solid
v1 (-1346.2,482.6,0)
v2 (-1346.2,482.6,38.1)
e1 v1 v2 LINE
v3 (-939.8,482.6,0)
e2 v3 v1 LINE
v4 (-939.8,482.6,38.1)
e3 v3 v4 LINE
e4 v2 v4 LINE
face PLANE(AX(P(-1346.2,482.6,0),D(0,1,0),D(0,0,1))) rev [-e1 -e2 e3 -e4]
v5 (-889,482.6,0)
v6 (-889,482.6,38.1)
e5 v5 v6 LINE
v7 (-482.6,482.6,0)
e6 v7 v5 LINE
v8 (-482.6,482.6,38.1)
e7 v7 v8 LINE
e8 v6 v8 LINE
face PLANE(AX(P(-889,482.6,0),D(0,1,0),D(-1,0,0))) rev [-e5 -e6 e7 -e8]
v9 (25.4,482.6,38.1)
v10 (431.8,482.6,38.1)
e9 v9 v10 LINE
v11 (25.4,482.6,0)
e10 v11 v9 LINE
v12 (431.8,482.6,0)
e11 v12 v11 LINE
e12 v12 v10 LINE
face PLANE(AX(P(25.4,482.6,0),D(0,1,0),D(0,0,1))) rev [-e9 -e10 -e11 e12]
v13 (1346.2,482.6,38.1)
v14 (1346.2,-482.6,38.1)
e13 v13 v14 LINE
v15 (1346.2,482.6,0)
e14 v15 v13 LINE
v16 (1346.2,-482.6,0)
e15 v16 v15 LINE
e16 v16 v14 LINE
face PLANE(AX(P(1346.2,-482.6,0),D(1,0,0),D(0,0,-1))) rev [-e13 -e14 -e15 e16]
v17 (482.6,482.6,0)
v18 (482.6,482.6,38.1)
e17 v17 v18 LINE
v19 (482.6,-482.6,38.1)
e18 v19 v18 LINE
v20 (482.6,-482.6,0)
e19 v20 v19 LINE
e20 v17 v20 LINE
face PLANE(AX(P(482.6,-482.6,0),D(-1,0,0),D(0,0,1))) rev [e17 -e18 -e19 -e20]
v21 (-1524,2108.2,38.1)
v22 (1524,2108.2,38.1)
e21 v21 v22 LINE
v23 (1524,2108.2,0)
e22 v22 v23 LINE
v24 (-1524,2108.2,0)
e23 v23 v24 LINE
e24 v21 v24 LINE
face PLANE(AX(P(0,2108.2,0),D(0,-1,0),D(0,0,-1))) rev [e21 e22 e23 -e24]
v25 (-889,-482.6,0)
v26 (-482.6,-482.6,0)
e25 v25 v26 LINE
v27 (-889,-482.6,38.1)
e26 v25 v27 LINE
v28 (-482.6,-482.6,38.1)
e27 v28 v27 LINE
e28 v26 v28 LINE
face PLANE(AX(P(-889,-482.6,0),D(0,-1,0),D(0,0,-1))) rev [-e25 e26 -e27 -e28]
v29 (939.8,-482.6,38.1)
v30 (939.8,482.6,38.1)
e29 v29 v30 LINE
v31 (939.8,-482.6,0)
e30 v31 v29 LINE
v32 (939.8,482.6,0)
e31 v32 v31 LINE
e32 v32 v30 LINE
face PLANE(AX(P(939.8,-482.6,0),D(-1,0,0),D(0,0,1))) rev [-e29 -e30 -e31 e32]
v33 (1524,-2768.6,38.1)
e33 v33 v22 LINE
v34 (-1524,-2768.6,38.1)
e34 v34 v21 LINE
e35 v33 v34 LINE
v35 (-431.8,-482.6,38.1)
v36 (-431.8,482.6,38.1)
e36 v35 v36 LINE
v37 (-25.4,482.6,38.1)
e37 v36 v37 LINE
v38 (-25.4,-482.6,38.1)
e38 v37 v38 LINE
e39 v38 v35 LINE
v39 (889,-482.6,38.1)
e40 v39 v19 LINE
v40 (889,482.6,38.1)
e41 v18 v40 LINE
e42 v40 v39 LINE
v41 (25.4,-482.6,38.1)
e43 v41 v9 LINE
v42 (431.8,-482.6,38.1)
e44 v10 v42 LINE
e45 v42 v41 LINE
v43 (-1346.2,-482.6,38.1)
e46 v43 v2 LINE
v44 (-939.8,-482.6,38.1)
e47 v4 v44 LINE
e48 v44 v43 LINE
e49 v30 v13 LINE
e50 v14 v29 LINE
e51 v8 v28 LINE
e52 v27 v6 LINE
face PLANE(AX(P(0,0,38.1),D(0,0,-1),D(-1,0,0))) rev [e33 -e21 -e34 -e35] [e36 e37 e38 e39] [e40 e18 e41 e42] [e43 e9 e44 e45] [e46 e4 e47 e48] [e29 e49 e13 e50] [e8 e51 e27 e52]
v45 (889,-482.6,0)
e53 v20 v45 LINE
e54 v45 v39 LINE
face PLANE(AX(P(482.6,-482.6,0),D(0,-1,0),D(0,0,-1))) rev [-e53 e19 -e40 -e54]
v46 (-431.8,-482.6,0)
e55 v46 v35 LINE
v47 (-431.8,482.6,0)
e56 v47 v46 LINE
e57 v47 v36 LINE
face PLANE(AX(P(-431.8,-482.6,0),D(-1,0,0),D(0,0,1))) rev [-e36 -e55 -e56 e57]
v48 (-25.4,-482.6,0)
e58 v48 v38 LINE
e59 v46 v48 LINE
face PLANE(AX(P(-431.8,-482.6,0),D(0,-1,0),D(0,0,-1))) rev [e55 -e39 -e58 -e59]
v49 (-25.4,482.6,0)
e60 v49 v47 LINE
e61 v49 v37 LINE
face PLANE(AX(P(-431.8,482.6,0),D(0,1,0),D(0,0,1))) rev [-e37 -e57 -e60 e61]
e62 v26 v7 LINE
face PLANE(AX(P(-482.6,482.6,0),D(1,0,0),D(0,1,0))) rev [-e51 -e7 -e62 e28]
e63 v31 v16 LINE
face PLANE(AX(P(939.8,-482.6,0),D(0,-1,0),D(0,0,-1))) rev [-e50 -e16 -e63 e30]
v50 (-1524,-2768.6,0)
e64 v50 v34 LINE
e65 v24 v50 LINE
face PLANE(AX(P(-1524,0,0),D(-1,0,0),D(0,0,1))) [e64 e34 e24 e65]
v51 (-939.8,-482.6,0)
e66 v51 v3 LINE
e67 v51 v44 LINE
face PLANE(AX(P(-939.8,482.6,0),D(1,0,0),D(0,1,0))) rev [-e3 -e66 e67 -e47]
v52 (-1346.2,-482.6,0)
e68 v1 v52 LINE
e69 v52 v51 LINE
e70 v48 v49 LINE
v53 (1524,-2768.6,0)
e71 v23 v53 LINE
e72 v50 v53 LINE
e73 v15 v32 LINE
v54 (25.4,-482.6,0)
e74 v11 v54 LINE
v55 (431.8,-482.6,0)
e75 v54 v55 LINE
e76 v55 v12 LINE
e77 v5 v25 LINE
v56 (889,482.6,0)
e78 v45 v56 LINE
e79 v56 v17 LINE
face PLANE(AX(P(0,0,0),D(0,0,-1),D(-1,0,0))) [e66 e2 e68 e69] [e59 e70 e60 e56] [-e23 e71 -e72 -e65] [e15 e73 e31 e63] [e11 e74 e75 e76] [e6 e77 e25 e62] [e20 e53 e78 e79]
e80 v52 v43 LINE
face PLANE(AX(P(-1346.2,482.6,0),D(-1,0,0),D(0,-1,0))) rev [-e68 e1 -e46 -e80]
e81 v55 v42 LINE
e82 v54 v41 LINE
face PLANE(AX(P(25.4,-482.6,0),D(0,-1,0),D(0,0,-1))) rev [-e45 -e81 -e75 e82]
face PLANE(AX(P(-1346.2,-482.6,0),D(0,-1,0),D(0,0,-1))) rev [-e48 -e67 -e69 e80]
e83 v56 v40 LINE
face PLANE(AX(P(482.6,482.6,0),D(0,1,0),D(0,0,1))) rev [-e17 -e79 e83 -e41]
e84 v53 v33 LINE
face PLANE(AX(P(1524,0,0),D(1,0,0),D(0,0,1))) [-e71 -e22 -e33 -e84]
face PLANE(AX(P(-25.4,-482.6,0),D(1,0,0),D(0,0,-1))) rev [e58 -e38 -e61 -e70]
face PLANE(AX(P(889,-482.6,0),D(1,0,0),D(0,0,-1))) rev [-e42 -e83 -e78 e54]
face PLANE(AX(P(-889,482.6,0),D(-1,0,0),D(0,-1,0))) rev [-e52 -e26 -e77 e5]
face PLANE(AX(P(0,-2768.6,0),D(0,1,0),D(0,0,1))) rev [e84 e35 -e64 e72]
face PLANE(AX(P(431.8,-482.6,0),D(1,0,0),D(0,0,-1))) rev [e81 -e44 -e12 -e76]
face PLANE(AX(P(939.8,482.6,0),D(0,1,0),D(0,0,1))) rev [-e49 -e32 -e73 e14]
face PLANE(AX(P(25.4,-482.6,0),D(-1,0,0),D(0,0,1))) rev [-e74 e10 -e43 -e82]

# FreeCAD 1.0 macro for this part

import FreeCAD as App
import Part
import Sketcher
Q = App.Units.Quantity

doc = App.newDocument("Part")
body = doc.addObject("PartDesign::Body", "Body")

# Sketch on XY plane
sketch1 = body.newObject("Sketcher::SketchObject", "Sketch")
sketch1.AttachmentSupport = (doc.getObject("XY_Plane"), [""])
sketch1.MapMode = "FlatFace"
sketch1.addGeometry([
    Part.LineSegment(App.Vector(-1372, 533, 0), App.Vector(-1372, -533, 0)),
    Part.LineSegment(App.Vector(-1372, -533, 0), App.Vector(1372, -533, 0)),
    Part.LineSegment(App.Vector(1372, -533, 0), App.Vector(1372, 533, 0)),
    Part.LineSegment(App.Vector(1372, 533, 0), App.Vector(-1372, 533, 0)),
], False)
sketch1.addConstraint([
    Sketcher.Constraint("Coincident", 0, 2, 1, 1),
    Sketcher.Constraint("Coincident", 1, 2, 2, 1),
    Sketcher.Constraint("Coincident", 2, 2, 3, 1),
    Sketcher.Constraint("Coincident", 3, 2, 0, 1),
    Sketcher.Constraint("Vertical", 0),
    Sketcher.Constraint("Horizontal", 1),
    Sketcher.Constraint("Vertical", 2),
    Sketcher.Constraint("Horizontal", 3),
    Sketcher.Constraint("Symmetric", 0, 2, 2, 2, -1, 1),
    Sketcher.Constraint("DistanceX", 1, 1, 1, 2, Q("108 in")),
    Sketcher.Constraint("DistanceY", 0, 2, 0, 1, Q("42 in")),
])
pad1 = body.newObject("PartDesign::Pad", "Pad")
pad1.Profile = sketch1
pad1.Length = Q("1.5 in")

# Sketch on XY plane
sketch2 = body.newObject("Sketcher::SketchObject", "Sketch001")
sketch2.AttachmentSupport = (doc.getObject("XY_Plane"), [""])
sketch2.MapMode = "FlatFace"
sketch2.AttachmentOffset = App.Placement(App.Vector(0, 0, 1.5 * 25.4), App.Rotation())
sketch2.addGeometry([
    Part.LineSegment(App.Vector(-1346, 483, 0), App.Vector(-1346, -483, 0)),  # 0
    Part.LineSegment(App.Vector(-1346, -483, 0), App.Vector(-940, -483, 0)),  # 1
    Part.LineSegment(App.Vector(-940, -483, 0), App.Vector(-940, 483, 0)),  # 2
    Part.LineSegment(App.Vector(-940, 483, 0), App.Vector(-1346, 483, 0)),  # 3
    Part.LineSegment(App.Vector(-889, 483, 0), App.Vector(-889, -483, 0)),  # 4
    Part.LineSegment(App.Vector(-889, -483, 0), App.Vector(-483, -483, 0)),  # 5
    Part.LineSegment(App.Vector(-483, -483, 0), App.Vector(-483, 483, 0)),  # 6
    Part.LineSegment(App.Vector(-483, 483, 0), App.Vector(-889, 483, 0)),  # 7
    Part.LineSegment(App.Vector(-432, 483, 0), App.Vector(-432, -483, 0)),  # 8
    Part.LineSegment(App.Vector(-432, -483, 0), App.Vector(-25, -483, 0)),  # 9
    Part.LineSegment(App.Vector(-25, -483, 0), App.Vector(-25, 483, 0)),  # 10
    Part.LineSegment(App.Vector(-25, 483, 0), App.Vector(-432, 483, 0)),  # 11
    Part.LineSegment(App.Vector(25, 483, 0), App.Vector(25, -483, 0)),  # 12
    Part.LineSegment(App.Vector(25, -483, 0), App.Vector(432, -483, 0)),  # 13
    Part.LineSegment(App.Vector(432, -483, 0), App.Vector(432, 483, 0)),  # 14
    Part.LineSegment(App.Vector(432, 483, 0), App.Vector(25, 483, 0)),  # 15
    Part.LineSegment(App.Vector(483, 483, 0), App.Vector(483, -483, 0)),  # 16
    Part.LineSegment(App.Vector(483, -483, 0), App.Vector(889, -483, 0)),  # 17
    Part.LineSegment(App.Vector(889, -483, 0), App.Vector(889, 483, 0)),  # 18
    Part.LineSegment(App.Vector(889, 483, 0), App.Vector(483, 483, 0)),  # 19
    Part.LineSegment(App.Vector(940, 483, 0), App.Vector(940, -483, 0)),  # 20
    Part.LineSegment(App.Vector(940, -483, 0), App.Vector(1346, -483, 0)),  # 21
    Part.LineSegment(App.Vector(1346, -483, 0), App.Vector(1346, 483, 0)),  # 22
    Part.LineSegment(App.Vector(1346, 483, 0), App.Vector(940, 483, 0)),  # 23
], False)
sketch2.addConstraint([
    Sketcher.Constraint("Coincident", 0, 2, 1, 1),
    Sketcher.Constraint("Coincident", 1, 2, 2, 1),
    Sketcher.Constraint("Coincident", 2, 2, 3, 1),
    Sketcher.Constraint("Coincident", 3, 2, 0, 1),
    Sketcher.Constraint("Coincident", 4, 2, 5, 1),
    Sketcher.Constraint("Coincident", 5, 2, 6, 1),
    Sketcher.Constraint("Coincident", 6, 2, 7, 1),
    Sketcher.Constraint("Coincident", 7, 2, 4, 1),
    Sketcher.Constraint("Coincident", 8, 2, 9, 1),
    Sketcher.Constraint("Coincident", 9, 2, 10, 1),
    Sketcher.Constraint("Coincident", 10, 2, 11, 1),
    Sketcher.Constraint("Coincident", 11, 2, 8, 1),
    Sketcher.Constraint("Coincident", 12, 2, 13, 1),
    Sketcher.Constraint("Coincident", 13, 2, 14, 1),
    Sketcher.Constraint("Coincident", 14, 2, 15, 1),
    Sketcher.Constraint("Coincident", 15, 2, 12, 1),
    Sketcher.Constraint("Coincident", 16, 2, 17, 1),
    Sketcher.Constraint("Coincident", 17, 2, 18, 1),
    Sketcher.Constraint("Coincident", 18, 2, 19, 1),
    Sketcher.Constraint("Coincident", 19, 2, 16, 1),
    Sketcher.Constraint("Coincident", 20, 2, 21, 1),
    Sketcher.Constraint("Coincident", 21, 2, 22, 1),
    Sketcher.Constraint("Coincident", 22, 2, 23, 1),
    Sketcher.Constraint("Coincident", 23, 2, 20, 1),
    Sketcher.Constraint("Vertical", 0),
    Sketcher.Constraint("Horizontal", 1),
    Sketcher.Constraint("Vertical", 2),
    Sketcher.Constraint("Horizontal", 3),
    Sketcher.Constraint("Vertical", 4),
    Sketcher.Constraint("Horizontal", 5),
    Sketcher.Constraint("Vertical", 6),
    Sketcher.Constraint("Horizontal", 7),
    Sketcher.Constraint("Vertical", 8),
    Sketcher.Constraint("Horizontal", 9),
    Sketcher.Constraint("Vertical", 10),
    Sketcher.Constraint("Horizontal", 11),
    Sketcher.Constraint("Vertical", 12),
    Sketcher.Constraint("Horizontal", 13),
    Sketcher.Constraint("Vertical", 14),
    Sketcher.Constraint("Horizontal", 15),
    Sketcher.Constraint("Vertical", 16),
    Sketcher.Constraint("Horizontal", 17),
    Sketcher.Constraint("Vertical", 18),
    Sketcher.Constraint("Horizontal", 19),
    Sketcher.Constraint("Vertical", 20),
    Sketcher.Constraint("Horizontal", 21),
    Sketcher.Constraint("Vertical", 22),
    Sketcher.Constraint("Horizontal", 23),
    Sketcher.Constraint("Symmetric", 10, 2, 12, 2, -1, 1),
    Sketcher.Constraint("Symmetric", 8, 2, 14, 2, -1, 1),
    Sketcher.Constraint("Symmetric", 6, 2, 16, 2, -1, 1),
    Sketcher.Constraint("Symmetric", 4, 2, 18, 2, -1, 1),
    Sketcher.Constraint("Symmetric", 2, 2, 20, 2, -1, 1),
    Sketcher.Constraint("Symmetric", 0, 2, 22, 2, -1, 1),
    Sketcher.Constraint("Horizontal", 1, 2, 4, 2),
    Sketcher.Constraint("Horizontal", 3, 2, 6, 2),
    Sketcher.Constraint("Horizontal", 5, 2, 8, 2),
    Sketcher.Constraint("Horizontal", 7, 2, 10, 2),
    Sketcher.Constraint("Horizontal", 9, 2, 12, 2),
    Sketcher.Constraint("Equal", 3, 5),
    Sketcher.Constraint("Equal", 7, 9),
    Sketcher.Constraint("DistanceX", 1, 1, 1, 2, Q("16 in")),
    Sketcher.Constraint("DistanceY", 0, 2, 0, 1, Q("38 in")),
    Sketcher.Constraint("DistanceX", 0, 2, -1, 1, Q("53 in")),
    Sketcher.Constraint("DistanceX", 4, 2, -1, 1, Q("35 in")),
    Sketcher.Constraint("DistanceX", 8, 2, -1, 1, Q("17 in")),
])
pocket1 = body.newObject("PartDesign::Pocket", "Pocket")
pocket1.Profile = sketch2
pocket1.Type = "ThroughAll"
pocket1.Midplane = True

# Sketch on XZ plane
sketch3 = body.newObject("Sketcher::SketchObject", "Sketch002")
sketch3.AttachmentSupport = (doc.getObject("XZ_Plane"), [""])
sketch3.MapMode = "FlatFace"
sketch3.AttachmentOffset = App.Placement(App.Vector(0, 0, 21 * 25.4), App.Rotation())
sketch3.addGeometry([
    Part.LineSegment(App.Vector(-1372, 38, 0), App.Vector(-1372, 0, 0)),
    Part.LineSegment(App.Vector(-1372, 0, 0), App.Vector(1372, 0, 0)),
    Part.LineSegment(App.Vector(1372, 0, 0), App.Vector(1372, 38, 0)),
    Part.LineSegment(App.Vector(1372, 38, 0), App.Vector(-1372, 38, 0)),
], False)
sketch3.addConstraint([
    Sketcher.Constraint("Coincident", 0, 2, 1, 1),
    Sketcher.Constraint("Coincident", 1, 2, 2, 1),
    Sketcher.Constraint("Coincident", 2, 2, 3, 1),
    Sketcher.Constraint("Coincident", 3, 2, 0, 1),
    Sketcher.Constraint("Vertical", 0),
    Sketcher.Constraint("Horizontal", 1),
    Sketcher.Constraint("Vertical", 2),
    Sketcher.Constraint("Horizontal", 3),
    Sketcher.Constraint("Symmetric", 0, 2, 1, 2, -1, 1),
    Sketcher.Constraint("DistanceX", 1, 1, 1, 2, Q("108 in")),
    Sketcher.Constraint("DistanceY", 0, 2, 0, 1, Q("1.5 in")),
])
pad2 = body.newObject("PartDesign::Pad", "Pad001")
pad2.Profile = sketch3
pad2.Length = Q("88 in")

# Sketch on XZ plane
sketch4 = body.newObject("Sketcher::SketchObject", "Sketch003")
sketch4.AttachmentSupport = (doc.getObject("XZ_Plane"), [""])
sketch4.MapMode = "FlatFace"
sketch4.AttachmentOffset = App.Placement(App.Vector(0, 0, -21 * 25.4), App.Rotation())
sketch4.addGeometry([
    Part.LineSegment(App.Vector(-1372, 0, 0), App.Vector(-1372, 38, 0)),
    Part.LineSegment(App.Vector(-1372, 38, 0), App.Vector(1372, 38, 0)),
    Part.LineSegment(App.Vector(1372, 38, 0), App.Vector(1372, 0, 0)),
    Part.LineSegment(App.Vector(1372, 0, 0), App.Vector(-1372, 0, 0)),
], False)
sketch4.addConstraint([
    Sketcher.Constraint("Coincident", 0, 2, 1, 1),
    Sketcher.Constraint("Coincident", 1, 2, 2, 1),
    Sketcher.Constraint("Coincident", 2, 2, 3, 1),
    Sketcher.Constraint("Coincident", 3, 2, 0, 1),
    Sketcher.Constraint("Vertical", 0),
    Sketcher.Constraint("Horizontal", 1),
    Sketcher.Constraint("Vertical", 2),
    Sketcher.Constraint("Horizontal", 3),
    Sketcher.Constraint("Symmetric", 2, 2, 3, 2, -1, 1),
    Sketcher.Constraint("DistanceX", 1, 1, 1, 2, Q("108 in")),
    Sketcher.Constraint("DistanceY", 0, 1, 0, 2, Q("1.5 in")),
])
pad3 = body.newObject("PartDesign::Pad", "Pad002")
pad3.Profile = sketch4
pad3.Length = Q("62 in")
pad3.Reversed = True

# Sketch on YZ plane
sketch5 = body.newObject("Sketcher::SketchObject", "Sketch004")
sketch5.AttachmentSupport = (doc.getObject("YZ_Plane"), [""])
sketch5.MapMode = "FlatFace"
sketch5.AttachmentOffset = App.Placement(App.Vector(0, 0, -54 * 25.4), App.Rotation())
sketch5.addGeometry([
    Part.LineSegment(App.Vector(2108, 0, 0), App.Vector(-2769, 0, 0)),
    Part.LineSegment(App.Vector(-2769, 0, 0), App.Vector(-2769, 38, 0)),
    Part.LineSegment(App.Vector(-2769, 38, 0), App.Vector(2108, 38, 0)),
    Part.LineSegment(App.Vector(2108, 38, 0), App.Vector(2108, 0, 0)),
], False)
sketch5.addConstraint([
    Sketcher.Constraint("Coincident", 0, 2, 1, 1),
    Sketcher.Constraint("Coincident", 1, 2, 2, 1),
    Sketcher.Constraint("Coincident", 2, 2, 3, 1),
    Sketcher.Constraint("Coincident", 3, 2, 0, 1),
    Sketcher.Constraint("Horizontal", 0),
    Sketcher.Constraint("Vertical", 1),
    Sketcher.Constraint("Horizontal", 2),
    Sketcher.Constraint("Vertical", 3),
    Sketcher.Constraint("PointOnObject", 0, 2, -1),
    Sketcher.Constraint("DistanceX", 0, 2, 0, 1, Q("192 in")),
    Sketcher.Constraint("DistanceY", 1, 1, 1, 2, Q("1.5 in")),
    Sketcher.Constraint("DistanceX", 0, 2, -1, 1, Q("109 in")),
])
pad4 = body.newObject("PartDesign::Pad", "Pad003")
pad4.Profile = sketch5
pad4.Length = Q("6 in")
pad4.Reversed = True
doc.recompute()

mirrored = body.newObject("PartDesign::Mirrored", "Mirrored")
mirrored.Originals = [pad4]
mirrored.MirrorPlane = (doc.getObject("YZ_Plane"), [""])
body.Tip = mirrored

doc.recompute()
